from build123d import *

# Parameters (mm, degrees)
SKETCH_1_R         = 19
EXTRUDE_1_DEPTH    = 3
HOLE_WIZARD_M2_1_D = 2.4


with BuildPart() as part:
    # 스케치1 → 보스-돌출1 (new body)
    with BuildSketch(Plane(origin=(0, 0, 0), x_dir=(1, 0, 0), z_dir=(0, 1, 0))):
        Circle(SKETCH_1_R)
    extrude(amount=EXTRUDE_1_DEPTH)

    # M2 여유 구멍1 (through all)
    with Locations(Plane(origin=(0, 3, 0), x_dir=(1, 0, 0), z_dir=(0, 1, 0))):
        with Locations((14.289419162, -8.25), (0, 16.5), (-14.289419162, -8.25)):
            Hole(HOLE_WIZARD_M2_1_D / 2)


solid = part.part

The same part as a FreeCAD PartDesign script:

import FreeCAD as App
import Part
import Sketcher

doc = App.newDocument("Part")
params = doc.addObject("Spreadsheet::Sheet", "Params")
for row, (alias, value) in enumerate([
    ("sketch1_diameter", "38 mm"),
    ("pad1_length", "3 mm"),
    ("sketch2_diameter", "2.4 mm"),
    ("hole_diameter", "2.4 mm"),
], start=1):
    params.set(f"A{row}", alias)
    params.set(f"B{row}", "=" + value)
    params.setAlias(f"B{row}", alias)

body = doc.addObject("PartDesign::Body", "Body")

# Sketch on XZ plane
sketch1 = body.newObject("Sketcher::SketchObject", "Sketch")
sketch1.AttachmentSupport = (doc.getObject("XZ_Plane"), [""])
sketch1.MapMode = "FlatFace"
sketch1.addGeometry(Part.Circle(App.Vector(0, 0, 0), App.Vector(0, 0, 1), 19), False)
sketch1.addConstraint([
    Sketcher.Constraint("Coincident", 0, 3, -1, 1),
    Sketcher.Constraint("Diameter", 0, 38.0),
])
sketch1.setExpression("Constraints[1]", "Params.sketch1_diameter")
pad1 = body.newObject("PartDesign::Pad", "Pad")
pad1.Profile = sketch1
pad1.setExpression("Length", "Params.pad1_length")
pad1.Reversed = True

# Sketch on XZ plane
sketch2 = body.newObject("Sketcher::SketchObject", "Sketch001")
sketch2.AttachmentSupport = (doc.getObject("XZ_Plane"), [""])
sketch2.MapMode = "FlatFace"
sketch2.AttachmentOffset = App.Placement(App.Vector(0, 0, -3), App.Rotation())
sketch2.addGeometry([
    Part.Circle(App.Vector(14.3, 8.2, 0), App.Vector(0, 0, 1), 1.2),
    Part.Circle(App.Vector(0, -16.5, 0), App.Vector(0, 0, 1), 1.2),
    Part.Circle(App.Vector(-14.3, 8.2, 0), App.Vector(0, 0, 1), 1.2),
], False)
sketch2.addConstraint([
    Sketcher.Constraint("Equal", 0, 1),
    Sketcher.Constraint("Equal", 1, 2),
    Sketcher.Constraint("Symmetric", 0, 3, 2, 3, -2),
    Sketcher.Constraint("PointOnObject", 1, 3, -2),
    Sketcher.Constraint("Diameter", 0, 2.4),
    Sketcher.Constraint("DistanceY", 1, 3, -1, 1, 16.5),
    Sketcher.Constraint("DistanceY", -1, 1, 0, 3, 8.25),
    Sketcher.Constraint("DistanceX", -1, 1, 0, 3, 14.289419),
])
sketch2.setExpression("Constraints[4]", "Params.sketch2_diameter")
doc.recompute()
hole = body.newObject("PartDesign::Hole", "Hole")
hole.Profile = sketch2
hole.ThreadType = "None"
hole.setExpression("Diameter", "Params.hole_diameter")
hole.DepthType = "ThroughAll"
hole.Reversed = True

doc.recompute()
